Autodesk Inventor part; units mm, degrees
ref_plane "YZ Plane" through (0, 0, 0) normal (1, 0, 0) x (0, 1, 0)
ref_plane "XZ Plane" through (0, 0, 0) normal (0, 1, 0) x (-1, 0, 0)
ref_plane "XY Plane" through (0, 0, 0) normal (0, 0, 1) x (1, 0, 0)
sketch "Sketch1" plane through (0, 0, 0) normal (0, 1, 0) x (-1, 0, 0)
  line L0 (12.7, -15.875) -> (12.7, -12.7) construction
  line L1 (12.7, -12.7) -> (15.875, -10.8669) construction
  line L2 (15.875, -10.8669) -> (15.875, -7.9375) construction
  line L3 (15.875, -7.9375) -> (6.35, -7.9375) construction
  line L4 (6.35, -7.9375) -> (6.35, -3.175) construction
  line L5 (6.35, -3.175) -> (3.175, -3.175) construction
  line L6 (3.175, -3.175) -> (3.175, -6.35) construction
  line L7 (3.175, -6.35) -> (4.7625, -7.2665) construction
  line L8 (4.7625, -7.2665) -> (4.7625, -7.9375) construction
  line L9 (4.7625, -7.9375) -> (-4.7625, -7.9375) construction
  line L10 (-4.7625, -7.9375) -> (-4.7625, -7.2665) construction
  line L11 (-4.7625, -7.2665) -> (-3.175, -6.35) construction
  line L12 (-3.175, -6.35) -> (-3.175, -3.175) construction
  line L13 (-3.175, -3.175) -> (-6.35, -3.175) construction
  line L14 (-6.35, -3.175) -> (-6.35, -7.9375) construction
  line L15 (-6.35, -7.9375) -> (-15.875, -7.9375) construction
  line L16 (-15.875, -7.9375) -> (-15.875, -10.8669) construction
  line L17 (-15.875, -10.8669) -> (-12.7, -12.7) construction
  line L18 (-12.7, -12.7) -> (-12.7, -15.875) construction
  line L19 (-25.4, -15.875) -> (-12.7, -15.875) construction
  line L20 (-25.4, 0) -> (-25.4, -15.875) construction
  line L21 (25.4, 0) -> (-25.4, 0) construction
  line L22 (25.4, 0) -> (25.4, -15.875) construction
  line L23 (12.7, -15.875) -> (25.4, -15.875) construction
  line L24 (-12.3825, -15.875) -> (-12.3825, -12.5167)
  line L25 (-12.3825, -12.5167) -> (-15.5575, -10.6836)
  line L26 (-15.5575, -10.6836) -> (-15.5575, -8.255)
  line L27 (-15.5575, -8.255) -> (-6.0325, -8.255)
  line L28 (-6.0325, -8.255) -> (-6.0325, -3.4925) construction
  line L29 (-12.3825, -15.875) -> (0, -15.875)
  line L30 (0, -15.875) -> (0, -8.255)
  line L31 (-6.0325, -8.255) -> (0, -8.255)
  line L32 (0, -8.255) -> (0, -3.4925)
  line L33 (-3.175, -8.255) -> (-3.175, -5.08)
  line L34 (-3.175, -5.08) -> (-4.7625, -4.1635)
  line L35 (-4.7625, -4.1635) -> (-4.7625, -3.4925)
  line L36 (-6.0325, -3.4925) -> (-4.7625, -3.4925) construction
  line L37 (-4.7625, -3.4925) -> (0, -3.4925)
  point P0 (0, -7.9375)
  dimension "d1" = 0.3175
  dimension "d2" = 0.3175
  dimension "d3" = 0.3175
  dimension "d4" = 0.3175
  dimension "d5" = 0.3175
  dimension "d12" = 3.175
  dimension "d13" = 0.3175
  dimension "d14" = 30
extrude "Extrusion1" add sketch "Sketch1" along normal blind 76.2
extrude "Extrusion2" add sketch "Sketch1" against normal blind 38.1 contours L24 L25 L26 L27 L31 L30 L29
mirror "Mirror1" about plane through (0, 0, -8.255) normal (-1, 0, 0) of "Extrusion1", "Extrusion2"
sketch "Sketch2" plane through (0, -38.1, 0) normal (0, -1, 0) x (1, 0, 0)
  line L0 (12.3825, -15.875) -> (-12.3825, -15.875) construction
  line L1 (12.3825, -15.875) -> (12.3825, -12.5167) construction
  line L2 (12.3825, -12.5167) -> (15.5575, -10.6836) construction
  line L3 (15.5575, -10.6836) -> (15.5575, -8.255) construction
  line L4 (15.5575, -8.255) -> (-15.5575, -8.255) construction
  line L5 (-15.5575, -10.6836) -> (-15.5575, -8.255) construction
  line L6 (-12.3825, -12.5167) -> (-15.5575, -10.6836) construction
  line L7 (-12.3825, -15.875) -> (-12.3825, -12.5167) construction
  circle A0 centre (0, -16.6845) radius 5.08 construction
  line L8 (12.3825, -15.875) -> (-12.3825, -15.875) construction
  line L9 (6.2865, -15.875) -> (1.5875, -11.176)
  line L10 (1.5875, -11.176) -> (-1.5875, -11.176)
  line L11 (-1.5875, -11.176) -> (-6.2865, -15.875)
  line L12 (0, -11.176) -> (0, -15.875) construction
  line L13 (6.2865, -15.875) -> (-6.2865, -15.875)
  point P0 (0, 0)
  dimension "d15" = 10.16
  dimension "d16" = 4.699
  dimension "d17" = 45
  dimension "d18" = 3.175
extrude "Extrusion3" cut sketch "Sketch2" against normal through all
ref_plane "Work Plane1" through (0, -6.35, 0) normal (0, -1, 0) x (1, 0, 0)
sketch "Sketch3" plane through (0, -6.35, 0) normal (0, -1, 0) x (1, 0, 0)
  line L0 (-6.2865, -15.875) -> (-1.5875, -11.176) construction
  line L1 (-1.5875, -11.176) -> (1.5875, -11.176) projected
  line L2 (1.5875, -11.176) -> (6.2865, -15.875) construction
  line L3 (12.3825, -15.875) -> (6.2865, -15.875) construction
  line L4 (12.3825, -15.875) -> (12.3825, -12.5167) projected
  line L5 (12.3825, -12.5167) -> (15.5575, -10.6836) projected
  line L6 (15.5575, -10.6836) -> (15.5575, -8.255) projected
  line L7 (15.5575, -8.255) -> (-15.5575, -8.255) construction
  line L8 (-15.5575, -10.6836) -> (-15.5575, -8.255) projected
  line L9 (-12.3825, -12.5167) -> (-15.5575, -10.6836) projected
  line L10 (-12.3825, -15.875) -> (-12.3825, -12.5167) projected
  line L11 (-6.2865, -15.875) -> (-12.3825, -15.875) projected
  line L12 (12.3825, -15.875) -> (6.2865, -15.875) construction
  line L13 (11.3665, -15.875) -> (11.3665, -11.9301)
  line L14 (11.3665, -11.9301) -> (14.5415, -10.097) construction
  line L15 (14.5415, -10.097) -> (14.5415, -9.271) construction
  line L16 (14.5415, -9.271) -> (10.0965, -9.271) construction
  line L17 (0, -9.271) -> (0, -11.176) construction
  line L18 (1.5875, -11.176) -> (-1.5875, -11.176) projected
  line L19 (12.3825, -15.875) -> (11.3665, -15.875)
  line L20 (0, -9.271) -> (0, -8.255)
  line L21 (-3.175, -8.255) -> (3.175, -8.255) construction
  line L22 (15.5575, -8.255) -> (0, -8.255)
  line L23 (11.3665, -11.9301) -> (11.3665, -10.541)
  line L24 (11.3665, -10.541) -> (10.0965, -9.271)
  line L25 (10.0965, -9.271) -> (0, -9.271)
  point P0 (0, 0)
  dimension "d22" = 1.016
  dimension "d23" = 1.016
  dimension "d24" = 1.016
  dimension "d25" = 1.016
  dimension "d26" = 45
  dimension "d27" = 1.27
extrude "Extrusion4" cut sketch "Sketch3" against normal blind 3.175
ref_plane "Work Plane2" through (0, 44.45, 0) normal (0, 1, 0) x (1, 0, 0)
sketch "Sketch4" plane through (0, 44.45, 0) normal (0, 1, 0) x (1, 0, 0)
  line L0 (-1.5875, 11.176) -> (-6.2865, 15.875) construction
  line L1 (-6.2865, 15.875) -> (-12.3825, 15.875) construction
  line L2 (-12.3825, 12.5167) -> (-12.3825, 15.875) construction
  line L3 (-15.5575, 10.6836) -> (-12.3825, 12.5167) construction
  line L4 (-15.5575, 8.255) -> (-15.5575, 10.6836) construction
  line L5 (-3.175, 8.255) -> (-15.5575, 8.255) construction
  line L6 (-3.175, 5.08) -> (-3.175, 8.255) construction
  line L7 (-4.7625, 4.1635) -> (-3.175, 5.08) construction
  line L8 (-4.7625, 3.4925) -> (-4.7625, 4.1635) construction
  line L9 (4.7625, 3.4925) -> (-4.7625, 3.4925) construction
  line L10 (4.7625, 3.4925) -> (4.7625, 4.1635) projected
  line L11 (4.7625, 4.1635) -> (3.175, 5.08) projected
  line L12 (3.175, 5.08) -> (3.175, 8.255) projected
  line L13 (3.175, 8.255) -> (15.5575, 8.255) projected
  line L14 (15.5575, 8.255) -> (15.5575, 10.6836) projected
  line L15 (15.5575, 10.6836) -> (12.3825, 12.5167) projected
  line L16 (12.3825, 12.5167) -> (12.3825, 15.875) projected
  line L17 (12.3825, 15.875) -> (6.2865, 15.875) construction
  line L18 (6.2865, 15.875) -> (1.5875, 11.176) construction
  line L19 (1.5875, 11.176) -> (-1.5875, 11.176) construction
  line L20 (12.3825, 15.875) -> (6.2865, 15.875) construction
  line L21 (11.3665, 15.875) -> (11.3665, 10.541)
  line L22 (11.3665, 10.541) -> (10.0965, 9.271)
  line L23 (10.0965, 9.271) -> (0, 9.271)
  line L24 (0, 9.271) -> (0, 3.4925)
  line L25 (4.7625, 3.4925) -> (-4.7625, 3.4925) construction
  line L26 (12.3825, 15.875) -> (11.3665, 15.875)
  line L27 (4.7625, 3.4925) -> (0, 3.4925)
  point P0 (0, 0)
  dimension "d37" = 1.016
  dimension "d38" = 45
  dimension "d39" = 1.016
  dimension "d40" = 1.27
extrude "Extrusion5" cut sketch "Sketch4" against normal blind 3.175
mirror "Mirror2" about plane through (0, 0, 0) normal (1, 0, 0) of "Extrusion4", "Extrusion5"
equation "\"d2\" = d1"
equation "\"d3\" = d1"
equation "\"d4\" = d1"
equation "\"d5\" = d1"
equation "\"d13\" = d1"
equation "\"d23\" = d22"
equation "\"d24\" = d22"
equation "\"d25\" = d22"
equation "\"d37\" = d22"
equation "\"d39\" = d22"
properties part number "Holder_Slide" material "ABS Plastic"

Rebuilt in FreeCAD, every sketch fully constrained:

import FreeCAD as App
import Part
import Sketcher
Q = App.Units.Quantity


def add_polygon(sketch, points):
    """Adds a closed chain of lines whose ends are joined by coincident constraints."""
    first, n = sketch.GeometryCount, len(points)
    for a, b in zip(points, points[1:] + points[:1]):
        sketch.addGeometry(Part.LineSegment(App.Vector(*a, 0), App.Vector(*b, 0)), False)
    for i in range(n):
        sketch.addConstraint(Sketcher.Constraint("Coincident", first + i, 2, first + (i + 1) % n, 1))

doc = App.newDocument("Part")
body = doc.addObject("PartDesign::Body", "Body")

sketch1 = body.newObject("Sketcher::SketchObject", "Sketch")
sketch1.AttachmentSupport = (doc.getObject("XZ_Plane"), [""])
sketch1.MapMode = "FlatFace"
add_polygon(sketch1, [(12.3825, -12.5167), (12.3825, -15.875), (0, -15.875), (0, -3.4925), (4.7625, -3.4925), (4.7625, -4.1635), (3.175, -5.08), (3.175, -8.255), (15.5575, -8.255), (15.5575, -10.6836)])
sketch1.addConstraint([
    Sketcher.Constraint("Vertical", 0),
    Sketcher.Constraint("Horizontal", 1),
    Sketcher.Constraint("Vertical", 2),
    Sketcher.Constraint("Horizontal", 3),
    Sketcher.Constraint("Vertical", 4),
    Sketcher.Constraint("Vertical", 6),
    Sketcher.Constraint("Horizontal", 7),
    Sketcher.Constraint("Vertical", 8),
    Sketcher.Constraint("PointOnObject", 1, 2, -2),
    Sketcher.Constraint("Parallel", 5, 9),
    Sketcher.Constraint("Equal", 1, 7),
    Sketcher.Constraint("Equal", 7, 2),
    Sketcher.Constraint("DistanceY", 6, 2, 6, 1, Q("0.125 in")),
    Sketcher.Constraint("DistanceX", -1, 1, 5, 2, Q("0.125 in")),
    Sketcher.Constraint("Angle", 5, Q("-150.0012 deg")),
    Sketcher.Constraint("DistanceY", 5, 2, -1, 1, Q("0.2 in")),
    Sketcher.Constraint("DistanceX", 3, 2, 0, 2, Q("0.3 in")),
    Sketcher.Constraint("DistanceY", 1, 2, 6, 2, Q("0.3 in")),
    Sketcher.Constraint("DistanceX", 3, 1, 3, 2, Q("0.1875 in")),
    Sketcher.Constraint("DistanceY", 0, 2, 0, 1, 3.3583),
])
pad1 = body.newObject("PartDesign::Pad", "Pad")
pad1.Profile = sketch1
pad1.Length = Q("3 in")
pad1.Reversed = True

sketch2 = body.newObject("Sketcher::SketchObject", "Sketch001")
sketch2.AttachmentSupport = (doc.getObject("XZ_Plane"), [""])
sketch2.MapMode = "FlatFace"
add_polygon(sketch2, [(12.3825, -12.5167), (12.3825, -15.875), (0, -15.875), (0, -8.255), (15.5575, -8.255), (15.5575, -10.6836)])
sketch2.addConstraint([
    Sketcher.Constraint("Vertical", 0),
    Sketcher.Constraint("Horizontal", 1),
    Sketcher.Constraint("Vertical", 2),
    Sketcher.Constraint("Horizontal", 3),
    Sketcher.Constraint("Vertical", 4),
    Sketcher.Constraint("PointOnObject", 1, 2, -2),
    Sketcher.Constraint("DistanceY", 2, 1, 2, 2, Q("0.3 in")),
    Sketcher.Constraint("Angle", 5, Q("-149.9998 deg")),
    Sketcher.Constraint("DistanceX", 0, 2, 3, 2, Q("0.125 in")),
    Sketcher.Constraint("DistanceX", 1, 2, 1, 1, Q("0.4875 in")),
    Sketcher.Constraint("DistanceY", 0, 2, -1, 1, Q("0.625 in")),
    Sketcher.Constraint("DistanceY", 0, 2, 0, 1, 3.3583),
])
pad2 = body.newObject("PartDesign::Pad", "Pad001")
pad2.Profile = sketch2
pad2.Length = Q("1.5 in")
doc.recompute()

mirrored = body.newObject("PartDesign::Mirrored", "Mirrored")
mirrored.Originals = [pad1, pad2]
mirrored.MirrorPlane = (doc.getObject("YZ_Plane"), [""])
body.Tip = mirrored

sketch3 = body.newObject("Sketcher::SketchObject", "Sketch002")
sketch3.AttachmentSupport = (doc.getObject("XZ_Plane"), [""])
sketch3.MapMode = "FlatFace"
sketch3.AttachmentOffset = App.Placement(App.Vector(0, 0, 1.5 * 25.4), App.Rotation())
add_polygon(sketch3, [(-6.2865, -15.875), (6.2865, -15.875), (1.5875, -11.176), (-1.5875, -11.176)])
sketch3.addConstraint([
    Sketcher.Constraint("Horizontal", 0),
    Sketcher.Constraint("Horizontal", 2),
    Sketcher.Constraint("Perpendicular", 1, 3),
    Sketcher.Constraint("Equal", 1, 3),
    Sketcher.Constraint("DistanceX", 2, 2, 2, 1, Q("0.125 in")),
    Sketcher.Constraint("DistanceX", 1, 2, 0, 2, Q("0.185 in")),
    Sketcher.Constraint("DistanceY", 1, 2, -1, 1, Q("0.44 in")),
    Sketcher.Constraint("DistanceX", -1, 1, 1, 2, Q("0.0625 in")),
])
pocket1 = body.newObject("PartDesign::Pocket", "Pocket")
pocket1.Profile = sketch3
pocket1.Type = "ThroughAll"

sketch4 = body.newObject("Sketcher::SketchObject", "Sketch003")
sketch4.AttachmentSupport = (doc.getObject("XZ_Plane"), [""])
sketch4.MapMode = "FlatFace"
sketch4.AttachmentOffset = App.Placement(App.Vector(0, 0, 0.25 * 25.4), App.Rotation())
add_polygon(sketch4, [(11.3665, -15.875), (12.3825, -15.875), (12.3825, -12.5167), (15.5575, -10.6836), (15.5575, -8.255), (0, -8.255), (0, -9.271), (10.0965, -9.271), (11.3665, -10.541)])
sketch4.addConstraint([
    Sketcher.Constraint("Horizontal", 0),
    Sketcher.Constraint("Vertical", 1),
    Sketcher.Constraint("Vertical", 3),
    Sketcher.Constraint("Horizontal", 4),
    Sketcher.Constraint("Vertical", 5),
    Sketcher.Constraint("Horizontal", 6),
    Sketcher.Constraint("Vertical", 8),
    Sketcher.Constraint("PointOnObject", 4, 2, -2),
    Sketcher.Constraint("Equal", 0, 5),
    Sketcher.Constraint("Angle", 7, Q("-45 deg")),
    Sketcher.Constraint("DistanceX", 0, 1, 0, 2, Q("0.04 in")),
    Sketcher.Constraint("DistanceX", 6, 2, 7, 2, Q("0.05 in")),
    Sketcher.Constraint("Angle", 2, Q("30.0002 deg")),
    Sketcher.Constraint("DistanceY", 8, 2, 8, 1, Q("0.21 in")),
    Sketcher.Constraint("DistanceX", 4, 2, 4, 1, Q("0.6125 in")),
    Sketcher.Constraint("DistanceX", 6, 1, 6, 2, Q("0.3975 in")),
    Sketcher.Constraint("DistanceY", 0, 2, -1, 1, Q("0.625 in")),
    Sketcher.Constraint("DistanceY", 1, 1, 1, 2, 3.3583),
])
pocket2 = body.newObject("PartDesign::Pocket", "Pocket001")
pocket2.Profile = sketch4
pocket2.Length = Q("0.125 in")

sketch5 = body.newObject("Sketcher::SketchObject", "Sketch004")
sketch5.AttachmentSupport = (doc.getObject("XZ_Plane"), [""])
sketch5.MapMode = "FlatFace"
sketch5.AttachmentOffset = App.Placement(App.Vector(0, 0, -1.75 * 25.4), App.Rotation())
add_polygon(sketch5, [(0, -3.4925), (4.7625, -3.4925), (4.7625, -4.1635), (3.175, -5.08), (3.175, -8.255), (15.5575, -8.255), (15.5575, -10.6836), (12.3825, -12.5167), (12.3825, -15.875), (11.3665, -15.875), (11.3665, -10.541), (10.0965, -9.271), (0, -9.271)])
sketch5.addConstraint([
    Sketcher.Constraint("Horizontal", 0),
    Sketcher.Constraint("Vertical", 1),
    Sketcher.Constraint("Vertical", 3),
    Sketcher.Constraint("Horizontal", 4),
    Sketcher.Constraint("Vertical", 5),
    Sketcher.Constraint("Vertical", 7),
    Sketcher.Constraint("Horizontal", 8),
    Sketcher.Constraint("Vertical", 9),
    Sketcher.Constraint("Horizontal", 11),
    Sketcher.Constraint("Vertical", 12),
    Sketcher.Constraint("PointOnObject", 11, 2, -2),
    Sketcher.Constraint("Parallel", 2, 6),
    Sketcher.Constraint("DistanceX", 8, 2, 8, 1, Q("0.04 in")),
    Sketcher.Constraint("DistanceX", 10, 2, 9, 2, Q("0.05 in")),
    Sketcher.Constraint("DistanceY", 9, 2, 10, 2, Q("0.05 in")),
    Sketcher.Constraint("DistanceY", 10, 2, 4, 2, Q("0.04 in")),
    Sketcher.Constraint("Angle", 2, Q("-150.0012 deg")),
    Sketcher.Constraint("DistanceY", 9, 1, 9, 2, Q("0.21 in")),
    Sketcher.Constraint("DistanceY", 2, 2, -1, 1, Q("0.2 in")),
    Sketcher.Constraint("DistanceX", 1, 2, 6, 2, Q("0.3 in")),
    Sketcher.Constraint("DistanceX", 0, 1, 0, 2, Q("0.1875 in")),
    Sketcher.Constraint("DistanceY", 3, 2, 3, 1, Q("0.125 in")),
    Sketcher.Constraint("DistanceX", 4, 1, 4, 2, Q("0.4875 in")),
    Sketcher.Constraint("DistanceY", 12, 1, 12, 2, Q("0.2275 in")),
    Sketcher.Constraint("DistanceX", -1, 1, 2, 2, Q("0.125 in")),
    Sketcher.Constraint("DistanceY", 5, 2, 5, 1, 2.4286),
])
pocket3 = body.newObject("PartDesign::Pocket", "Pocket002")
pocket3.Profile = sketch5
pocket3.Length = Q("0.125 in")
pocket3.Reversed = True
doc.recompute()

mirrored2 = body.newObject("PartDesign::Mirrored", "Mirrored001")
mirrored2.Originals = [pocket2, pocket3]
mirrored2.MirrorPlane = (doc.getObject("YZ_Plane"), [""])
body.Tip = mirrored2

doc.recompute()
